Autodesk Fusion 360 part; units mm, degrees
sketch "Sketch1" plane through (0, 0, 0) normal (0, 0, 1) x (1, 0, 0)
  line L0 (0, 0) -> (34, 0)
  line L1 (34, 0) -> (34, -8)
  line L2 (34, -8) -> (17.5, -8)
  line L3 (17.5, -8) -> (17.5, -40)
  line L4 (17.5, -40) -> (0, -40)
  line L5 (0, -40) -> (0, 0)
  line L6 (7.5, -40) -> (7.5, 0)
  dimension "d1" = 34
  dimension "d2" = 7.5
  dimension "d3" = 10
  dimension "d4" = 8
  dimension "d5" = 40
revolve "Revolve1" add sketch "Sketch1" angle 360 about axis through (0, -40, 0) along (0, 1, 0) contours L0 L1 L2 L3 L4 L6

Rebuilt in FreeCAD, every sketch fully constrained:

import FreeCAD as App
import Part
import Sketcher

V = App.Vector
Q = App.Units.Quantity

doc = App.newDocument("Part")
body = doc.addObject("PartDesign::Body", "Body")

# Sketch on XY plane
sketch1 = body.newObject("Sketcher::SketchObject", "Sketch")
sketch1.AttachmentSupport = (doc.getObject("XY_Plane"), [""])
sketch1.MapMode = "FlatFace"
sketch1.addGeometry(Part.LineSegment(V(34, 0, 0), V(7.5, 0, 0)), False)
sketch1.addGeometry(Part.LineSegment(V(7.5, 0, 0), V(7.5, -40, 0)), False)
sketch1.addGeometry(Part.LineSegment(V(7.5, -40, 0), V(17.5, -40, 0)), False)
sketch1.addGeometry(Part.LineSegment(V(17.5, -40, 0), V(17.5, -8, 0)), False)
sketch1.addGeometry(Part.LineSegment(V(17.5, -8, 0), V(34, -8, 0)), False)
sketch1.addGeometry(Part.LineSegment(V(34, -8, 0), V(34, 0, 0)), False)
sketch1.addConstraint(Sketcher.Constraint("Coincident", 0, 2, 1, 1))
sketch1.addConstraint(Sketcher.Constraint("Coincident", 1, 2, 2, 1))
sketch1.addConstraint(Sketcher.Constraint("Coincident", 2, 2, 3, 1))
sketch1.addConstraint(Sketcher.Constraint("Coincident", 3, 2, 4, 1))
sketch1.addConstraint(Sketcher.Constraint("Coincident", 4, 2, 5, 1))
sketch1.addConstraint(Sketcher.Constraint("Coincident", 5, 2, 0, 1))
sketch1.addConstraint(Sketcher.Constraint("Horizontal", 0))
sketch1.addConstraint(Sketcher.Constraint("Vertical", 1))
sketch1.addConstraint(Sketcher.Constraint("Horizontal", 2))
sketch1.addConstraint(Sketcher.Constraint("Vertical", 3))
sketch1.addConstraint(Sketcher.Constraint("Horizontal", 4))
sketch1.addConstraint(Sketcher.Constraint("Vertical", 5))
sketch1.addConstraint(Sketcher.Constraint("PointOnObject", 0, 2, -1))
sketch1.addConstraint(Sketcher.Constraint("DistanceX", 2, 1, 2, 2, Q("10 mm")))
sketch1.addConstraint(Sketcher.Constraint("DistanceY", 1, 2, 1, 1, Q("40 mm")))
sketch1.addConstraint(Sketcher.Constraint("DistanceY", 5, 1, 5, 2, Q("8 mm")))
sketch1.addConstraint(Sketcher.Constraint("DistanceX", -1, 1, 4, 2, Q("34 mm")))
sketch1.addConstraint(Sketcher.Constraint("DistanceX", -1, 1, 0, 2, Q("7.5 mm")))
revolution = body.newObject("PartDesign::Revolution", "Revolution")
revolution.Profile = sketch1
revolution.ReferenceAxis = (sketch1, ["V_Axis"])
revolution.Angle = 360

doc.recompute()
